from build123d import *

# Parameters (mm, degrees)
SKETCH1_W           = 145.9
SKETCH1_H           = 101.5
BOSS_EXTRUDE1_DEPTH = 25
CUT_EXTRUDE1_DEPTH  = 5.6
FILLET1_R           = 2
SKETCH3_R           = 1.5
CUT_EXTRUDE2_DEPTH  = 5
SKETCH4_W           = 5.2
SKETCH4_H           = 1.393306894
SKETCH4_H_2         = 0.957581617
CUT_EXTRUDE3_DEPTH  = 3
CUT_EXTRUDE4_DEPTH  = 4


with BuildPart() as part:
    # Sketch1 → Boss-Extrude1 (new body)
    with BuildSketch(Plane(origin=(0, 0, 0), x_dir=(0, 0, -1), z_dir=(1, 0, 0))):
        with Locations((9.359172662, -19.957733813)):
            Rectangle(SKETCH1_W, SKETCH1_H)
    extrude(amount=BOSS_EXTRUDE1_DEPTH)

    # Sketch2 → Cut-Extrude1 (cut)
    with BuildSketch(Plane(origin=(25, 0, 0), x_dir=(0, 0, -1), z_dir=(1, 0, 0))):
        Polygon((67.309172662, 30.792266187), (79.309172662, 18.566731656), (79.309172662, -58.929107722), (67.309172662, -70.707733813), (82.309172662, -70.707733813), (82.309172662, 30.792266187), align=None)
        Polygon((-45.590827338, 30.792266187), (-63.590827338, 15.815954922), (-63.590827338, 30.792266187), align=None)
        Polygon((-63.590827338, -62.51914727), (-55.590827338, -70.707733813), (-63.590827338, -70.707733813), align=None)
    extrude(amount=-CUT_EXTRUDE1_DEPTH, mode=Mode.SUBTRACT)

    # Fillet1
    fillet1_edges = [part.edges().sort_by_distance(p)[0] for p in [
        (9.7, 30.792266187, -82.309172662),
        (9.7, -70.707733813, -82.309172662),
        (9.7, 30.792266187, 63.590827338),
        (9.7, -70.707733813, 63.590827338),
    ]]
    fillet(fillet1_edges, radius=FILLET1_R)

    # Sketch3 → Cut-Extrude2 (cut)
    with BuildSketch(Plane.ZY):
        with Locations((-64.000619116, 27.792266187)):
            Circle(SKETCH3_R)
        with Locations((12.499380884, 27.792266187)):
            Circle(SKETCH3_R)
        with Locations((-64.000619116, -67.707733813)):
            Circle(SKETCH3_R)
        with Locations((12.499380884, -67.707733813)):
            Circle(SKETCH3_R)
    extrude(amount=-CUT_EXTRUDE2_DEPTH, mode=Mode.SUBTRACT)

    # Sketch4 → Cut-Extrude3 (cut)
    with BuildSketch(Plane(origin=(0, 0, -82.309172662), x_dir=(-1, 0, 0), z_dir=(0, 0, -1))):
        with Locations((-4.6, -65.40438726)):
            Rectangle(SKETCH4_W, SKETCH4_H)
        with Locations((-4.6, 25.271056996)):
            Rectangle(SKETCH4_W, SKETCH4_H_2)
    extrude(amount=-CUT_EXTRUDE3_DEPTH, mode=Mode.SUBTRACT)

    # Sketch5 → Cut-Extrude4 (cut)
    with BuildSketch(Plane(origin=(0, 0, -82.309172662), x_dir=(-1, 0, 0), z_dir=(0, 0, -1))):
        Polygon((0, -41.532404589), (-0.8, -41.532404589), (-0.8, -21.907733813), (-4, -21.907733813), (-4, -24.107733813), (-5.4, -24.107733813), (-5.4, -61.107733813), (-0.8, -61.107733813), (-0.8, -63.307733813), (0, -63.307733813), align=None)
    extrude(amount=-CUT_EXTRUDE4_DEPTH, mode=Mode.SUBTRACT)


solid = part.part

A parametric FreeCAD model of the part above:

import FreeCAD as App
import Part
import Sketcher

V = App.Vector


def edges_at(feature, points):
    """Names of the edges that pass closest to the given points."""
    edges = feature.Shape.Edges
    near = lambda p: min(range(len(edges)), key=lambda i: edges[i].distToShape(Part.Vertex(*p))[0])
    return sorted({f"Edge{near(p) + 1}" for p in points})


def add_polygon(sketch, points):
    """Adds a closed chain of lines whose ends are joined by coincident constraints."""
    first, n = sketch.GeometryCount, len(points)
    for a, b in zip(points, points[1:] + points[:1]):
        sketch.addGeometry(Part.LineSegment(App.Vector(*a, 0), App.Vector(*b, 0)), False)
    for i in range(n):
        sketch.addConstraint(Sketcher.Constraint("Coincident", first + i, 2, first + (i + 1) % n, 1))

doc = App.newDocument("Part")
body = doc.addObject("PartDesign::Body", "Body")

sketch1 = doc.addObject("Sketcher::SketchObject", "Sketch")
body.addObject(sketch1)
sketch1.AttachmentSupport = (doc.YZ_Plane, [""])
sketch1.MapMode = "FlatFace"
add_polygon(sketch1, [(31, 64), (-71, 64), (-71, -82), (31, -82)])
sketch1.addConstraint(Sketcher.Constraint("Horizontal", 0))
sketch1.addConstraint(Sketcher.Constraint("Vertical", 1))
sketch1.addConstraint(Sketcher.Constraint("Horizontal", 2))
sketch1.addConstraint(Sketcher.Constraint("Vertical", 3))
sketch1.addConstraint(Sketcher.Constraint("DistanceX", 0, 2, 0, 1, 101.5))
sketch1.addConstraint(Sketcher.Constraint("DistanceY", 1, 2, 1, 1, 145.9))
sketch1.addConstraint(Sketcher.Constraint("DistanceX", 0, 2, -1, 1, 70.707734))
sketch1.addConstraint(Sketcher.Constraint("DistanceY", -1, 1, 0, 2, 63.590827))
pad1 = doc.addObject("PartDesign::Pad", "Pad")
body.addObject(pad1)
pad1.Profile = sketch1
pad1.Length = 25

sketch2 = doc.addObject("Sketcher::SketchObject", "Sketch001")
body.addObject(sketch2)
sketch2.AttachmentSupport = (doc.YZ_Plane, [""])
sketch2.MapMode = "FlatFace"
sketch2.AttachmentOffset = App.Placement(V(0, 0, 25), App.Rotation())
add_polygon(sketch2, [(30.792266, -67.309173), (18.566732, -79.309173), (-58.929108, -79.309173), (-70.707734, -67.309173), (-70.707734, -82.309173), (30.792266, -82.309173)])
add_polygon(sketch2, [(15.815955, 63.590827), (30.792266, 45.590827), (30.792266, 63.590827)])
add_polygon(sketch2, [(-70.707734, 55.590827), (-62.519147, 63.590827), (-70.707734, 63.590827)])
sketch2.addConstraint(Sketcher.Constraint("Horizontal", 1))
sketch2.addConstraint(Sketcher.Constraint("Vertical", 3))
sketch2.addConstraint(Sketcher.Constraint("Horizontal", 4))
sketch2.addConstraint(Sketcher.Constraint("Vertical", 5))
sketch2.addConstraint(Sketcher.Constraint("Vertical", 7))
sketch2.addConstraint(Sketcher.Constraint("Horizontal", 8))
sketch2.addConstraint(Sketcher.Constraint("Horizontal", 10))
sketch2.addConstraint(Sketcher.Constraint("Vertical", 11))
sketch2.addConstraint(Sketcher.Constraint("Perpendicular", 0, 2))
sketch2.addConstraint(Sketcher.Constraint("Horizontal", 2, 2, 5, 2))
sketch2.addConstraint(Sketcher.Constraint("Horizontal", 8, 2, 9, 2))
sketch2.addConstraint(Sketcher.Constraint("Vertical", 5, 2, 6, 2))
sketch2.addConstraint(Sketcher.Constraint("Vertical", 3, 2, 10, 2))
sketch2.addConstraint(Sketcher.Constraint("DistanceY", 3, 2, 3, 1, 15.0))
sketch2.addConstraint(Sketcher.Constraint("DistanceY", 7, 1, 7, 2, 18.0))
sketch2.addConstraint(Sketcher.Constraint("DistanceY", 11, 2, 11, 1, 8.0))
sketch2.addConstraint(Sketcher.Constraint("DistanceX", 4, 1, 4, 2, 101.5))
sketch2.addConstraint(Sketcher.Constraint("DistanceY", 1, 2, 2, 2, 12.0))
sketch2.addConstraint(Sketcher.Constraint("DistanceY", 5, 2, 6, 2, 112.9))
sketch2.addConstraint(Sketcher.Constraint("DistanceX", 1, 2, 1, 1, 77.495839))
sketch2.addConstraint(Sketcher.Constraint("DistanceX", 8, 2, 8, 1, 14.976311))
sketch2.addConstraint(Sketcher.Constraint("DistanceX", 10, 2, 10, 1, 8.188587))
sketch2.addConstraint(Sketcher.Constraint("DistanceX", -1, 1, 0, 2, 18.566732))
sketch2.addConstraint(Sketcher.Constraint("DistanceY", 0, 2, -1, 1, 79.309173))
pocket1 = doc.addObject("PartDesign::Pocket", "Pocket")
body.addObject(pocket1)
pocket1.Profile = sketch2
pocket1.Length = 5.6
doc.recompute()

fillet = doc.addObject("PartDesign::Fillet", "Fillet")
body.addObject(fillet)
fillet.Base = (pocket1, edges_at(pocket1, [
    (9.7, 30.792, -82.309),
    (9.7, -70.708, -82.309),
    (9.7, 30.792, 63.591),
    (9.7, -70.708, 63.591),
]))
fillet.Radius = 2

sketch3 = doc.addObject("Sketcher::SketchObject", "Sketch002")
body.addObject(sketch3)
sketch3.AttachmentSupport = (doc.YZ_Plane, [""])
sketch3.MapMode = "FlatFace"
sketch3.addGeometry(Part.Circle(V(27.8, -64, 0), V(0, 0, 1), 1.5), False)
sketch3.addGeometry(Part.Circle(V(27.8, 12.5, 0), V(0, 0, 1), 1.5), False)
sketch3.addGeometry(Part.Circle(V(-67.7, -64, 0), V(0, 0, 1), 1.5), False)
sketch3.addGeometry(Part.Circle(V(-67.7, 12.5, 0), V(0, 0, 1), 1.5), False)
sketch3.addConstraint(Sketcher.Constraint("Equal", 0, 1))
sketch3.addConstraint(Sketcher.Constraint("Equal", 1, 2))
sketch3.addConstraint(Sketcher.Constraint("Equal", 2, 3))
sketch3.addConstraint(Sketcher.Constraint("Horizontal", 0, 3, 2, 3))
sketch3.addConstraint(Sketcher.Constraint("Horizontal", 1, 3, 3, 3))
sketch3.addConstraint(Sketcher.Constraint("Vertical", 0, 3, 1, 3))
sketch3.addConstraint(Sketcher.Constraint("Vertical", 2, 3, 3, 3))
sketch3.addConstraint(Sketcher.Constraint("Diameter", 0, 3.0))
sketch3.addConstraint(Sketcher.Constraint("DistanceY", 0, 3, 1, 3, 76.5))
sketch3.addConstraint(Sketcher.Constraint("DistanceX", 2, 3, 0, 3, 95.5))
sketch3.addConstraint(Sketcher.Constraint("DistanceY", 0, 3, -1, 1, 64.000619))
sketch3.addConstraint(Sketcher.Constraint("DistanceX", -1, 1, 0, 3, 27.792266))
pocket2 = doc.addObject("PartDesign::Pocket", "Pocket001")
body.addObject(pocket2)
pocket2.Profile = sketch3
pocket2.Length = 5
pocket2.Reversed = True

sketch4 = doc.addObject("Sketcher::SketchObject", "Sketch003")
body.addObject(sketch4)
sketch4.AttachmentSupport = (doc.XY_Plane, [""])
sketch4.MapMode = "FlatFace"
sketch4.AttachmentOffset = App.Placement(V(0, 0, -82.309173), App.Rotation())
add_polygon(sketch4, [(7.2, -64.7), (7.2, -66.1), (2, -66.1), (2, -64.7)])
add_polygon(sketch4, [(7.2, 25.7), (7.2, 24.8), (2, 24.8), (2, 25.7)])
sketch4.addConstraint(Sketcher.Constraint("Vertical", 0))
sketch4.addConstraint(Sketcher.Constraint("Horizontal", 1))
sketch4.addConstraint(Sketcher.Constraint("Vertical", 2))
sketch4.addConstraint(Sketcher.Constraint("Horizontal", 3))
sketch4.addConstraint(Sketcher.Constraint("Vertical", 4))
sketch4.addConstraint(Sketcher.Constraint("Horizontal", 5))
sketch4.addConstraint(Sketcher.Constraint("Vertical", 6))
sketch4.addConstraint(Sketcher.Constraint("Horizontal", 7))
sketch4.addConstraint(Sketcher.Constraint("Vertical", 3, 2, 4, 2))
sketch4.addConstraint(Sketcher.Constraint("Vertical", 2, 2, 5, 2))
sketch4.addConstraint(Sketcher.Constraint("DistanceX", 1, 2, 1, 1, 5.2))
sketch4.addConstraint(Sketcher.Constraint("DistanceX", -1, 1, 1, 2, 2.0))
sketch4.addConstraint(Sketcher.Constraint("DistanceY", 3, 2, 4, 2, 89.5))
sketch4.addConstraint(Sketcher.Constraint("DistanceY", 4, 2, 4, 1, 0.957582))
sketch4.addConstraint(Sketcher.Constraint("DistanceY", 0, 2, 0, 1, 1.393307))
sketch4.addConstraint(Sketcher.Constraint("DistanceY", 0, 2, -1, 1, 66.101041))
pocket3 = doc.addObject("PartDesign::Pocket", "Pocket002")
body.addObject(pocket3)
pocket3.Profile = sketch4
pocket3.Length = 3
pocket3.Reversed = True

sketch5 = doc.addObject("Sketcher::SketchObject", "Sketch004")
body.addObject(sketch5)
sketch5.AttachmentSupport = (doc.XY_Plane, [""])
sketch5.MapMode = "FlatFace"
sketch5.AttachmentOffset = App.Placement(V(0, 0, -82.309173), App.Rotation())
add_polygon(sketch5, [(0, -41.5), (0.8, -41.5), (0.8, -21.9), (4, -21.9), (4, -24.1), (5.4, -24.1), (5.4, -61.1), (0.8, -61.1), (0.8, -63.3), (0, -63.3)])
sketch5.addConstraint(Sketcher.Constraint("Horizontal", 0))
sketch5.addConstraint(Sketcher.Constraint("Vertical", 1))
sketch5.addConstraint(Sketcher.Constraint("Horizontal", 2))
sketch5.addConstraint(Sketcher.Constraint("Vertical", 3))
sketch5.addConstraint(Sketcher.Constraint("Horizontal", 4))
sketch5.addConstraint(Sketcher.Constraint("Vertical", 5))
sketch5.addConstraint(Sketcher.Constraint("Horizontal", 6))
sketch5.addConstraint(Sketcher.Constraint("Vertical", 7))
sketch5.addConstraint(Sketcher.Constraint("Horizontal", 8))
sketch5.addConstraint(Sketcher.Constraint("Vertical", 9))
sketch5.addConstraint(Sketcher.Constraint("PointOnObject", 8, 2, -2))
sketch5.addConstraint(Sketcher.Constraint("Vertical", 1, 2, 6, 2))
sketch5.addConstraint(Sketcher.Constraint("Equal", 3, 7))
sketch5.addConstraint(Sketcher.Constraint("DistanceY", 5, 2, 5, 1, 37.0))
sketch5.addConstraint(Sketcher.Constraint("DistanceX", 0, 1, 0, 2, 0.8))
sketch5.addConstraint(Sketcher.Constraint("DistanceX", 2, 1, 2, 2, 3.2))
sketch5.addConstraint(Sketcher.Constraint("DistanceX", 4, 1, 4, 2, 1.4))
sketch5.addConstraint(Sketcher.Constraint("DistanceY", 3, 2, 3, 1, 2.2))
sketch5.addConstraint(Sketcher.Constraint("DistanceY", 1, 1, 1, 2, 19.624671))
sketch5.addConstraint(Sketcher.Constraint("DistanceY", 0, 2, -1, 1, 41.532405))
pocket4 = doc.addObject("PartDesign::Pocket", "Pocket003")
body.addObject(pocket4)
pocket4.Profile = sketch5
pocket4.Length = 4
pocket4.Reversed = True

doc.recompute()
